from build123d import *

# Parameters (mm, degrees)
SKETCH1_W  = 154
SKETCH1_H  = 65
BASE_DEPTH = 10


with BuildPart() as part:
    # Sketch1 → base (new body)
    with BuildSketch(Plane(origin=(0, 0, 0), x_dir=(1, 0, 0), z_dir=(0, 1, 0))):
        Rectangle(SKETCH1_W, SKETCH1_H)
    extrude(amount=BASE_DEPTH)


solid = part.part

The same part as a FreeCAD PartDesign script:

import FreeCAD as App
import Part
import Sketcher
from FreeCAD import Vector

doc = App.newDocument("Part")
body = doc.addObject("PartDesign::Body", "Body")

sketch1 = body.newObject("Sketcher::SketchObject", "Sketch")
sketch1.AttachmentSupport = (doc.getObject("XZ_Plane"), [""])
sketch1.MapMode = "FlatFace"
sketch1.addGeometry([
    Part.LineSegment(Vector(-77, -32.5, 0), Vector(-77, 32.5, 0)),
    Part.LineSegment(Vector(-77, 32.5, 0), Vector(77, 32.5, 0)),
    Part.LineSegment(Vector(77, 32.5, 0), Vector(77, -32.5, 0)),
    Part.LineSegment(Vector(77, -32.5, 0), Vector(-77, -32.5, 0)),
], False)
sketch1.addConstraint([
    Sketcher.Constraint("Coincident", 0, 2, 1, 1),
    Sketcher.Constraint("Coincident", 1, 2, 2, 1),
    Sketcher.Constraint("Coincident", 2, 2, 3, 1),
    Sketcher.Constraint("Coincident", 3, 2, 0, 1),
    Sketcher.Constraint("Vertical", 0),
    Sketcher.Constraint("Horizontal", 1),
    Sketcher.Constraint("Vertical", 2),
    Sketcher.Constraint("Horizontal", 3),
    Sketcher.Constraint("Symmetric", 0, 2, 2, 2, -1, 1),
    Sketcher.Constraint("DistanceX", 1, 1, 1, 2, 154.0),
    Sketcher.Constraint("DistanceY", 0, 1, 0, 2, 65.0),
])
pad1 = body.newObject("PartDesign::Pad", "Pad")
pad1.Profile = sketch1
pad1.Length = 10
pad1.Reversed = True

doc.recompute()
